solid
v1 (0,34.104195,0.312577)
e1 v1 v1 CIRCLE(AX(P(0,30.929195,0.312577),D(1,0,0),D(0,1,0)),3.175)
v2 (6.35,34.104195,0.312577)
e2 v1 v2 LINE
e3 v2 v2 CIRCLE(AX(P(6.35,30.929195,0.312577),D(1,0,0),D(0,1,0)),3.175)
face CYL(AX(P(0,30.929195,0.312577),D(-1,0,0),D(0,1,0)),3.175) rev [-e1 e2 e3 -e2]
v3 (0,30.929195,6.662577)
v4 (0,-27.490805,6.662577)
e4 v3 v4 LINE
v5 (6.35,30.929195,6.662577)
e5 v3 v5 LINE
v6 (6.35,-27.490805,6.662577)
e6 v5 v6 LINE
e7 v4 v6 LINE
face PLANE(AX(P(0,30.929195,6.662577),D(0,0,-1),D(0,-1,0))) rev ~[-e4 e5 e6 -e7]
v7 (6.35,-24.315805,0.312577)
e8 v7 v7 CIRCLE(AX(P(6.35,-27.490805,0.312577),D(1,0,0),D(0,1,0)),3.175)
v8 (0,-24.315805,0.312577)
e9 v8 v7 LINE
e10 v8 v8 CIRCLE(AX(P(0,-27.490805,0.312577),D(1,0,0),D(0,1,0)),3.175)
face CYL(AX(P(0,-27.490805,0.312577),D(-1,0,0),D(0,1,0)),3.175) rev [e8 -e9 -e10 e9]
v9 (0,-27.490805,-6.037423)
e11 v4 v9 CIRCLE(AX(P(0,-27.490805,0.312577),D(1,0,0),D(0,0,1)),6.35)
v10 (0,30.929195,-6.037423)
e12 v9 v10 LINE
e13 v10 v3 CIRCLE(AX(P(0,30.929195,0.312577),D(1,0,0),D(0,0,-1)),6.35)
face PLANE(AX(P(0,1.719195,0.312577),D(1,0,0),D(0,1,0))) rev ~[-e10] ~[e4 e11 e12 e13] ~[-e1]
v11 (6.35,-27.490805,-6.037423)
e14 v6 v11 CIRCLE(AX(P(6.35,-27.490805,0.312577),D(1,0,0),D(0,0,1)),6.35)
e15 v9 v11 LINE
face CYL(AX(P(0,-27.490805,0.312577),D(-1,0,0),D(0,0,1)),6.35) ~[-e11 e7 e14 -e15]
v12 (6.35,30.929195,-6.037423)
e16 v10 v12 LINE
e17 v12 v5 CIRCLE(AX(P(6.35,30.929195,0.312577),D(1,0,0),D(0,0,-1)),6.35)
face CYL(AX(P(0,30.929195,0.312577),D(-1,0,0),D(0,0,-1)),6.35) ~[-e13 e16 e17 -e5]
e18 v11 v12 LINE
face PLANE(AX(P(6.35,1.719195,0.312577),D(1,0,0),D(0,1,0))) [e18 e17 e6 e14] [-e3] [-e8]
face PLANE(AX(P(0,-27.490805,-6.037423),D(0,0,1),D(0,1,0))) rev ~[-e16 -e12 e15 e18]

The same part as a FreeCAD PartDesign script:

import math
import FreeCAD as App
import Part
import Sketcher
Q = App.Units.Quantity

doc = App.newDocument("Part")
params = doc.addObject("Spreadsheet::Sheet", "Params")
for row, (alias, value) in enumerate([
    ("sketch1_diameter", "0.25 in"),
    ("sketch1_radius", "0.25 in"),
    ("sketch1_width", "2.3 in"),
    ("pad1_length", "0.25 in"),
], start=1):
    params.set(f"A{row}", alias)
    params.set(f"B{row}", "=" + value)
    params.setAlias(f"B{row}", alias)

body = doc.addObject("PartDesign::Body", "Body")

# Sketch on YZ plane
sketch1 = doc.addObject("Sketcher::SketchObject", "Sketch")
body.addObject(sketch1)
sketch1.AttachmentSupport = (doc.YZ_Plane, [""])
sketch1.MapMode = "FlatFace"
sketch1.addGeometry(Part.LineSegment(App.Vector(30.9, 6.7, 0), App.Vector(-27.5, 6.7, 0)), False)
sketch1.addGeometry(Part.ArcOfCircle(Part.Circle(App.Vector(-27.5, 0.3, 0), App.Vector(0, 0, 1), 6.3), math.radians(90), math.radians(270)), False)
sketch1.addGeometry(Part.LineSegment(App.Vector(-27.5, -6, 0), App.Vector(30.9, -6, 0)), False)
sketch1.addGeometry(Part.ArcOfCircle(Part.Circle(App.Vector(30.9, 0.3, 0), App.Vector(0, 0, 1), 6.3), math.radians(-90), math.radians(90)), False)
sketch1.addGeometry(Part.Circle(App.Vector(-27.5, 0.3, 0), App.Vector(0, 0, 1), 3.2), False)
sketch1.addGeometry(Part.Circle(App.Vector(30.9, 0.3, 0), App.Vector(0, 0, 1), 3.2), False)
sketch1.addConstraint(Sketcher.Constraint("Tangent", 0, 2, 1, 1))
sketch1.addConstraint(Sketcher.Constraint("Tangent", 1, 2, 2, 1))
sketch1.addConstraint(Sketcher.Constraint("Tangent", 2, 2, 3, 1))
sketch1.addConstraint(Sketcher.Constraint("Tangent", 3, 2, 0, 1))
sketch1.addConstraint(Sketcher.Constraint("Horizontal", 0))
sketch1.addConstraint(Sketcher.Constraint("Horizontal", 2))
sketch1.addConstraint(Sketcher.Constraint("Coincident", 4, 3, 1, 3))
sketch1.addConstraint(Sketcher.Constraint("Coincident", 5, 3, 3, 3))
sketch1.addConstraint(Sketcher.Constraint("Equal", 4, 5))
sketch1.addConstraint(Sketcher.Constraint("Diameter", 4, Q("0.25 in")))
sketch1.addConstraint(Sketcher.Constraint("Radius", 1, Q("0.25 in")))
sketch1.addConstraint(Sketcher.Constraint("DistanceX", 0, 2, 0, 1, Q("2.3 in")))
sketch1.addConstraint(Sketcher.Constraint("DistanceX", 1, 3, -1, 1, Q("27.490805 mm")))
sketch1.addConstraint(Sketcher.Constraint("DistanceY", -1, 1, 1, 3, Q("0.312577 mm")))
sketch1.setExpression("Constraints[9]", "Params.sketch1_diameter")
sketch1.setExpression("Constraints[10]", "Params.sketch1_radius")
sketch1.setExpression("Constraints[11]", "Params.sketch1_width")
pad1 = doc.addObject("PartDesign::Pad", "Pad")
body.addObject(pad1)
pad1.Profile = sketch1
pad1.setExpression("Length", "Params.pad1_length")

doc.recompute()
